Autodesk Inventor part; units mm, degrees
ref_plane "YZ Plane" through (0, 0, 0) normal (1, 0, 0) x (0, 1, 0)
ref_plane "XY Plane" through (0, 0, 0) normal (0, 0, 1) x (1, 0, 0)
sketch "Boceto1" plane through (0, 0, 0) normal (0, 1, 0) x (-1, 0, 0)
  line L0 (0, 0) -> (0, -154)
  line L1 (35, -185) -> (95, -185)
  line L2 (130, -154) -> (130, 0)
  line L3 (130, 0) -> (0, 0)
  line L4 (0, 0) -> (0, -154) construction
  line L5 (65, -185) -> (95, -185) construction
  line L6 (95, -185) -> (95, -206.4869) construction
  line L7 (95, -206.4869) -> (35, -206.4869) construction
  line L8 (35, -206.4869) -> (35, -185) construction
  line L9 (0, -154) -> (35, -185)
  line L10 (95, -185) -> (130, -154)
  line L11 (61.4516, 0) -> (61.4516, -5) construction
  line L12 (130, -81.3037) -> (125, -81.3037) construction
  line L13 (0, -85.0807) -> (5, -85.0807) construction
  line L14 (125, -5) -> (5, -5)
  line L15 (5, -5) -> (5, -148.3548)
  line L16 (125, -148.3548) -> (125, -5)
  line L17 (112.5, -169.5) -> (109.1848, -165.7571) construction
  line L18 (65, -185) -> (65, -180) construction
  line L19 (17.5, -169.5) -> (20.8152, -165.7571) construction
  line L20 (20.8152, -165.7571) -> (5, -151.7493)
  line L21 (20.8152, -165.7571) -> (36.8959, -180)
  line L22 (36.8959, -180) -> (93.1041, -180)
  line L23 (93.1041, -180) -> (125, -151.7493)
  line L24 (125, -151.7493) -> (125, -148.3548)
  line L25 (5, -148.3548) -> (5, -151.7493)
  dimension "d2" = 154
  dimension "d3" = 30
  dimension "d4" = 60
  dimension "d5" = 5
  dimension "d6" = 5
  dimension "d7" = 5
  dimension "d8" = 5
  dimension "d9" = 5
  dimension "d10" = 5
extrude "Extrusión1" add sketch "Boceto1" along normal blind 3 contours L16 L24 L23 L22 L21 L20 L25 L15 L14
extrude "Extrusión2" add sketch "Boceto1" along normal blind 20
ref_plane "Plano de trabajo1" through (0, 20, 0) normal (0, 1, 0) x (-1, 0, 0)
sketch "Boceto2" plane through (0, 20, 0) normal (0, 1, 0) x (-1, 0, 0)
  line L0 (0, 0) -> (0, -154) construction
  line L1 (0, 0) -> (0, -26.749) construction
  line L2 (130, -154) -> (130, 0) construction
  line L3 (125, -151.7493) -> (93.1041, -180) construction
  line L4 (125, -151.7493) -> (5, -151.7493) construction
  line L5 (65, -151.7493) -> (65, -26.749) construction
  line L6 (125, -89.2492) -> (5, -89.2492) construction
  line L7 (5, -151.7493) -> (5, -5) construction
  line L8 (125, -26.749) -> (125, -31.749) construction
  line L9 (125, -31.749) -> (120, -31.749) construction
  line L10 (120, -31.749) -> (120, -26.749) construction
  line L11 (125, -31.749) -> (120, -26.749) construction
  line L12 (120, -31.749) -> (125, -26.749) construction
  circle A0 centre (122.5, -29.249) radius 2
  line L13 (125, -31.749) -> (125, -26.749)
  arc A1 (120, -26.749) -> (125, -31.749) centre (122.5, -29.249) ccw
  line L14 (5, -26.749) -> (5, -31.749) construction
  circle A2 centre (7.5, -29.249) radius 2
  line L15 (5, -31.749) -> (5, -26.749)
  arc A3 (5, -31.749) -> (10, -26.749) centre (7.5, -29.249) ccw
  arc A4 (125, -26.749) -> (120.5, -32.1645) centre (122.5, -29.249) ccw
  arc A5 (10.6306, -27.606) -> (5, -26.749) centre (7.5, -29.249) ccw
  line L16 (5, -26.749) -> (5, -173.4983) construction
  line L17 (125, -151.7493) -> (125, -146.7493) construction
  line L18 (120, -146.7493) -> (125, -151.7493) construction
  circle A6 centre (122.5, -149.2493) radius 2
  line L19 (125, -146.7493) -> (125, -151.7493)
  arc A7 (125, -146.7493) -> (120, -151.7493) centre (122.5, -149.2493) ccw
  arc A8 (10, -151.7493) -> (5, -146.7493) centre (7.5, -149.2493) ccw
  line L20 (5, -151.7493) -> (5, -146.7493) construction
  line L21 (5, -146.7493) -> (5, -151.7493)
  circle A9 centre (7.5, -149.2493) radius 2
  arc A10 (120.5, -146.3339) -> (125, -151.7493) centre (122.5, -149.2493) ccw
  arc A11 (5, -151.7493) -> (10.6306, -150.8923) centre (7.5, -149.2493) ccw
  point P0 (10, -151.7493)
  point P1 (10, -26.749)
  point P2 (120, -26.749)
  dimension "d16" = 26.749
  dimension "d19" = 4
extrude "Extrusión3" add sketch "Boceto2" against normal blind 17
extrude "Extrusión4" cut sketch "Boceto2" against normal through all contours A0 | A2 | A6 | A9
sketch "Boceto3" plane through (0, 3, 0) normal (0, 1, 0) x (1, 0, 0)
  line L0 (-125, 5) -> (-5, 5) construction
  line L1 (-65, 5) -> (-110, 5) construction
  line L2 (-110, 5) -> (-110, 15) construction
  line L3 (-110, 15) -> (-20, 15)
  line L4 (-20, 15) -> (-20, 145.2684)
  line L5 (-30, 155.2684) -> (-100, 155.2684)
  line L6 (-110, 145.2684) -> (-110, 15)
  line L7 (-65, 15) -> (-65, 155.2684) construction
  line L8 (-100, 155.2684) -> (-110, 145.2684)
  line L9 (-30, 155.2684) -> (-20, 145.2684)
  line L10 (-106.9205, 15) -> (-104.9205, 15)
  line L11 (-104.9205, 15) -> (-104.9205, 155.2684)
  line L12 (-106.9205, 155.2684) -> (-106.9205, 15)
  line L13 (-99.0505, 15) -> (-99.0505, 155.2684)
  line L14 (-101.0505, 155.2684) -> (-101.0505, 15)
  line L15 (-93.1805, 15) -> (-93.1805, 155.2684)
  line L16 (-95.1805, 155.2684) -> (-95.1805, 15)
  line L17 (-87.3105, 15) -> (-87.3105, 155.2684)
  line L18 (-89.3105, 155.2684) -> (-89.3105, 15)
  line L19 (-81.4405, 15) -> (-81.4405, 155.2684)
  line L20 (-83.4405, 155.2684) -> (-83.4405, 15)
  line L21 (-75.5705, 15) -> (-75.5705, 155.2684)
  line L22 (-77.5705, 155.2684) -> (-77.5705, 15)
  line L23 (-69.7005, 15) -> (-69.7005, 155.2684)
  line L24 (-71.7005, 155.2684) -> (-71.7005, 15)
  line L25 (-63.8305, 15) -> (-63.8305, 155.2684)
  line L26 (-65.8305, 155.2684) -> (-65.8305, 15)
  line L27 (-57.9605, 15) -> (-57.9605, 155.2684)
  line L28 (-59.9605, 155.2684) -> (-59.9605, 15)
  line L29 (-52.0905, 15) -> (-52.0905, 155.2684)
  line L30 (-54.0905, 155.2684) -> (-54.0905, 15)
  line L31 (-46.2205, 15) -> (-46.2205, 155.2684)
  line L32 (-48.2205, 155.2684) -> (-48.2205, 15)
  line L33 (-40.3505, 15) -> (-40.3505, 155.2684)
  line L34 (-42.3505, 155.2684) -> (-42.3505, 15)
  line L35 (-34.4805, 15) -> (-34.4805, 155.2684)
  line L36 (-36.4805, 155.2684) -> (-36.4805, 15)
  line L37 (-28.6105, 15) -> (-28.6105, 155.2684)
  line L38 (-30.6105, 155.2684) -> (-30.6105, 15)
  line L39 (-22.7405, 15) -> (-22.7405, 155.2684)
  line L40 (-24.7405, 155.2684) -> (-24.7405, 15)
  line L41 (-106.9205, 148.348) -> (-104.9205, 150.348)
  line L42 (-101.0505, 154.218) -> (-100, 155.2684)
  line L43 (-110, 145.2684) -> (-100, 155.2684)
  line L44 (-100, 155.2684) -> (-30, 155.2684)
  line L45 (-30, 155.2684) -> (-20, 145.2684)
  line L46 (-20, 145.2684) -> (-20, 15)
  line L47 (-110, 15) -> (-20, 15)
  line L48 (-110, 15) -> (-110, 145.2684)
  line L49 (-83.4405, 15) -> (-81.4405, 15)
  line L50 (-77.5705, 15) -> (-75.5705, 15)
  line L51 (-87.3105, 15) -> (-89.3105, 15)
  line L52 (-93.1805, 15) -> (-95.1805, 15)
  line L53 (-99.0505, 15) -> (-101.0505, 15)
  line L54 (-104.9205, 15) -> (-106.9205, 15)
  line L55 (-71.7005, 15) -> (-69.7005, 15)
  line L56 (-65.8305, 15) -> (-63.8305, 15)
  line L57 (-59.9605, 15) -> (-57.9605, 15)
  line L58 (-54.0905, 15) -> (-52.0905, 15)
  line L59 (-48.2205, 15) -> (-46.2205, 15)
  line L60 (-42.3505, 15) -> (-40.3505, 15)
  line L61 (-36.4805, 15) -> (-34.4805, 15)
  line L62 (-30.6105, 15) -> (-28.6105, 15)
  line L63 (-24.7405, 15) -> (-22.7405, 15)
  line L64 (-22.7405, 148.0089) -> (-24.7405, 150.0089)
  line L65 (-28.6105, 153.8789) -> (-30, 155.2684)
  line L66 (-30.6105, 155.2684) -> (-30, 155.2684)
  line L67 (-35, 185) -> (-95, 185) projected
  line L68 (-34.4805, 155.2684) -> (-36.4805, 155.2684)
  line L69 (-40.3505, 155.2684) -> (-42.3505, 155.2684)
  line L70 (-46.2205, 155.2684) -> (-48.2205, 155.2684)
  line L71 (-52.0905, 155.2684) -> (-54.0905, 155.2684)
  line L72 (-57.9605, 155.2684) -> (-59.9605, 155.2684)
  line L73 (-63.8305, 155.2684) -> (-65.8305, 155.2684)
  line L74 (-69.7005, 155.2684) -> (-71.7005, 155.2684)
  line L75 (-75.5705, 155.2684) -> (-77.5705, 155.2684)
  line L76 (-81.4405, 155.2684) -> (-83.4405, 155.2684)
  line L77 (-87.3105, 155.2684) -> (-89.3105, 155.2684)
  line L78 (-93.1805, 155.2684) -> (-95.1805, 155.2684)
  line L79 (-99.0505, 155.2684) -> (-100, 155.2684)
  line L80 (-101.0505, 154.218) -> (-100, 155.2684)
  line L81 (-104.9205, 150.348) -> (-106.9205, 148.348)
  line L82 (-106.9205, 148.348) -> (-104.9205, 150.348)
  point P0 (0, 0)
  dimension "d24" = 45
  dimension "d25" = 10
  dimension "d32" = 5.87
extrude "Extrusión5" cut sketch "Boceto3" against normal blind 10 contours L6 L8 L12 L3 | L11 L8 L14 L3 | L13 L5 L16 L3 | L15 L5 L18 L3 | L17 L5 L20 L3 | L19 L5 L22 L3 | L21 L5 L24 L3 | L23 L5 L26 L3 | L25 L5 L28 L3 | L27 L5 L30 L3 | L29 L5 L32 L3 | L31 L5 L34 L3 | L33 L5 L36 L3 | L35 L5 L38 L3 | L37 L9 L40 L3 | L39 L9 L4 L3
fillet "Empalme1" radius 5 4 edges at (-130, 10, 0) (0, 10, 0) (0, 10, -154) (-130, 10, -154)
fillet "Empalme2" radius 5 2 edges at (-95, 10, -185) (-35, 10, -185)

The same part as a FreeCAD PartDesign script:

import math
import FreeCAD as App
import Part
import Sketcher
from FreeCAD import Vector


def edges_at(feature, points):
    """Names of the edges that pass closest to the given points."""
    edges = feature.Shape.Edges
    near = lambda p: min(range(len(edges)), key=lambda i: edges[i].distToShape(Part.Vertex(*p))[0])
    return sorted({f"Edge{near(p) + 1}" for p in points})

doc = App.newDocument("Part")
params = doc.addObject("Spreadsheet::Sheet", "Params")
for row, (alias, value) in enumerate([
    ("sketch1_width", "120 mm"),
    ("pad1_length", "3 mm"),
    ("sketch2_width", "60 mm"),
    ("sketch2_height", "154 mm"),
    ("pad2_length", "20 mm"),
    ("sketch3_diameter", "4 mm"),
    ("sketch3_height", "5 mm"),
    ("pad3_length", "17 mm"),
    ("sketch4_diameter", "4 mm"),
    ("sketch5_width", "3.87 mm"),
    ("pocket2_length", "10 mm"),
    ("fillet_radius", "5 mm"),
    ("fillet2_radius", "5 mm"),
], start=1):
    params.set(f"A{row}", alias)
    params.set(f"B{row}", "=" + value)
    params.setAlias(f"B{row}", alias)

body = doc.addObject("PartDesign::Body", "Body")

sketch1 = doc.addObject("Sketcher::SketchObject", "Sketch")
body.addObject(sketch1)
sketch1.AttachmentSupport = (doc.XZ_Plane, [""])
sketch1.MapMode = "FlatFace"
sketch1.addGeometry([
    Part.LineSegment(Vector(-125, -151.7493, 0), Vector(-125, -5, 0)),
    Part.LineSegment(Vector(-125, -5, 0), Vector(-5, -5, 0)),
    Part.LineSegment(Vector(-5, -5, 0), Vector(-5, -151.7493, 0)),
    Part.LineSegment(Vector(-5, -151.7493, 0), Vector(-20.8152, -165.7571, 0)),
    Part.LineSegment(Vector(-20.8152, -165.7571, 0), Vector(-36.8959, -180, 0)),
    Part.LineSegment(Vector(-36.8959, -180, 0), Vector(-93.1041, -180, 0)),
    Part.LineSegment(Vector(-93.1041, -180, 0), Vector(-125, -151.7493, 0)),
], False)
sketch1.addConstraint([
    Sketcher.Constraint("Coincident", 0, 2, 1, 1),
    Sketcher.Constraint("Coincident", 1, 2, 2, 1),
    Sketcher.Constraint("Coincident", 2, 2, 3, 1),
    Sketcher.Constraint("Coincident", 3, 2, 4, 1),
    Sketcher.Constraint("Coincident", 4, 2, 5, 1),
    Sketcher.Constraint("Coincident", 5, 2, 6, 1),
    Sketcher.Constraint("Coincident", 6, 2, 0, 1),
    Sketcher.Constraint("Vertical", 0),
    Sketcher.Constraint("Horizontal", 1),
    Sketcher.Constraint("Vertical", 2),
    Sketcher.Constraint("Horizontal", 5),
    Sketcher.Constraint("Parallel", 3, 4),
    Sketcher.Constraint("Horizontal", 2, 2, 6, 2),
    Sketcher.Constraint("DistanceY", 0, 2, -1, 1, 5.0),
    Sketcher.Constraint("DistanceX", 1, 2, -1, 1, 5.0),
    Sketcher.Constraint("DistanceX", 1, 1, 1, 2, 120.0),
    Sketcher.Constraint("DistanceY", 4, 2, -1, 1, 180.0),
    Sketcher.Constraint("Distance", 6, 42.608),
    Sketcher.Constraint("DistanceX", 5, 2, 5, 1, 56.2082),
    Sketcher.Constraint("DistanceY", 0, 1, 0, 2, 146.7493),
    Sketcher.Constraint("DistanceY", 3, 2, -1, 1, 165.757),
])
sketch1.setExpression("Constraints[15]", "Params.sketch1_width")
pad1 = doc.addObject("PartDesign::Pad", "Pad")
body.addObject(pad1)
pad1.Profile = sketch1
pad1.setExpression("Length", "Params.pad1_length")
pad1.Reversed = True

sketch2 = doc.addObject("Sketcher::SketchObject", "Sketch001")
body.addObject(sketch2)
sketch2.AttachmentSupport = (doc.XZ_Plane, [""])
sketch2.MapMode = "FlatFace"
sketch2.addGeometry([
    Part.LineSegment(Vector(-130, 0, 0), Vector(0, 0, 0)),
    Part.LineSegment(Vector(0, 0, 0), Vector(0, -154, 0)),
    Part.LineSegment(Vector(0, -154, 0), Vector(-35, -185, 0)),
    Part.LineSegment(Vector(-35, -185, 0), Vector(-95, -185, 0)),
    Part.LineSegment(Vector(-95, -185, 0), Vector(-130, -154, 0)),
    Part.LineSegment(Vector(-130, -154, 0), Vector(-130, 0, 0)),
    Part.LineSegment(Vector(-5, -5, 0), Vector(-125, -5, 0)),
    Part.LineSegment(Vector(-125, -5, 0), Vector(-125, -151.7493, 0)),
    Part.LineSegment(Vector(-125, -151.7493, 0), Vector(-93.1041, -180, 0)),
    Part.LineSegment(Vector(-93.1041, -180, 0), Vector(-36.8959, -180, 0)),
    Part.LineSegment(Vector(-36.8959, -180, 0), Vector(-20.8152, -165.7571, 0)),
    Part.LineSegment(Vector(-20.8152, -165.7571, 0), Vector(-5, -151.7493, 0)),
    Part.LineSegment(Vector(-5, -151.7493, 0), Vector(-5, -5, 0)),
], False)
sketch2.addConstraint([
    Sketcher.Constraint("Coincident", 0, 2, 1, 1),
    Sketcher.Constraint("Coincident", 1, 2, 2, 1),
    Sketcher.Constraint("Coincident", 2, 2, 3, 1),
    Sketcher.Constraint("Coincident", 3, 2, 4, 1),
    Sketcher.Constraint("Coincident", 4, 2, 5, 1),
    Sketcher.Constraint("Coincident", 5, 2, 0, 1),
    Sketcher.Constraint("Coincident", 6, 2, 7, 1),
    Sketcher.Constraint("Coincident", 7, 2, 8, 1),
    Sketcher.Constraint("Coincident", 8, 2, 9, 1),
    Sketcher.Constraint("Coincident", 9, 2, 10, 1),
    Sketcher.Constraint("Coincident", 10, 2, 11, 1),
    Sketcher.Constraint("Coincident", 11, 2, 12, 1),
    Sketcher.Constraint("Coincident", 12, 2, 6, 1),
    Sketcher.Constraint("Horizontal", 0),
    Sketcher.Constraint("Vertical", 1),
    Sketcher.Constraint("Horizontal", 3),
    Sketcher.Constraint("Vertical", 5),
    Sketcher.Constraint("Horizontal", 6),
    Sketcher.Constraint("Vertical", 7),
    Sketcher.Constraint("Horizontal", 9),
    Sketcher.Constraint("Vertical", 12),
    Sketcher.Constraint("Coincident", 0, 2, -1, 1),
    Sketcher.Constraint("Parallel", 4, 8),
    Sketcher.Constraint("Parallel", 2, 10),
    Sketcher.Constraint("Parallel", 10, 11),
    Sketcher.Constraint("Horizontal", 1, 2, 4, 2),
    Sketcher.Constraint("Horizontal", 7, 2, 11, 2),
    Sketcher.Constraint("Equal", 2, 4),
    Sketcher.Constraint("DistanceX", 3, 2, 3, 1, 60.0),
    Sketcher.Constraint("DistanceY", 1, 2, 1, 1, 154.0),
    Sketcher.Constraint("DistanceY", 6, 2, -1, 1, 5.0),
    Sketcher.Constraint("DistanceX", 11, 2, -1, 1, 5.0),
    Sketcher.Constraint("DistanceX", 5, 2, 6, 2, 5.0),
    Sketcher.Constraint("DistanceX", 6, 2, 3, 2, 30.0),
    Sketcher.Constraint("DistanceY", 3, 2, 8, 2, 5.0),
    Sketcher.Constraint("DistanceY", 2, 2, -1, 1, 185.0),
    Sketcher.Constraint("Distance", 8, 42.608),
    Sketcher.Constraint("DistanceY", 10, 2, -1, 1, 165.757),
])
sketch2.setExpression("Constraints[28]", "Params.sketch2_width")
sketch2.setExpression("Constraints[29]", "Params.sketch2_height")
pad2 = doc.addObject("PartDesign::Pad", "Pad001")
body.addObject(pad2)
pad2.Profile = sketch2
pad2.setExpression("Length", "Params.pad2_length")
pad2.Reversed = True

sketch3 = doc.addObject("Sketcher::SketchObject", "Sketch002")
body.addObject(sketch3)
sketch3.AttachmentSupport = (doc.XZ_Plane, [""])
sketch3.MapMode = "FlatFace"
sketch3.AttachmentOffset = App.Placement(Vector(0, 0, -20), App.Rotation())
sketch3.addGeometry([
    Part.ArcOfCircle(Part.Circle(Vector(-122.5, -29.249, 0), Vector(0, 0, 1), 3.535534), math.radians(-135), math.radians(45)),
    Part.LineSegment(Vector(-125, -31.749, 0), Vector(-125, -26.749, 0)),
    Part.ArcOfCircle(Part.Circle(Vector(-122.5, -29.249, 0), Vector(0, 0, 1), 3.535534), math.radians(45), math.radians(135)),
    Part.Circle(Vector(-122.5, -29.249, 0), Vector(0, 0, 1), 2),
    Part.LineSegment(Vector(-5, -26.749, 0), Vector(-5, -31.749, 0)),
    Part.ArcOfCircle(Part.Circle(Vector(-7.5, -29.249, 0), Vector(0, 0, 1), 3.535534), math.radians(135), math.radians(315)),
    Part.ArcOfCircle(Part.Circle(Vector(-7.5, -29.249, 0), Vector(0, 0, 1), 3.535534), math.radians(45), math.radians(135)),
    Part.Circle(Vector(-7.5, -29.249, 0), Vector(0, 0, 1), 2),
    Part.LineSegment(Vector(-125, -151.7493, 0), Vector(-125, -146.7493, 0)),
    Part.ArcOfCircle(Part.Circle(Vector(-122.5, -149.2493, 0), Vector(0, 0, 1), 3.535534), math.radians(-45), math.radians(135)),
    Part.ArcOfCircle(Part.Circle(Vector(-122.5, -149.2493, 0), Vector(0, 0, 1), 3.535471), math.radians(-135), math.radians(-45)),
    Part.Circle(Vector(-122.5, -149.2493, 0), Vector(0, 0, 1), 2),
    Part.ArcOfCircle(Part.Circle(Vector(-7.5, -149.2493, 0), Vector(0, 0, 1), 3.535534), math.radians(-135), math.radians(-45)),
    Part.ArcOfCircle(Part.Circle(Vector(-7.5, -149.2493, 0), Vector(0, 0, 1), 3.535534), math.radians(45), math.radians(225)),
    Part.LineSegment(Vector(-5, -146.7493, 0), Vector(-5, -151.7493, 0)),
    Part.Circle(Vector(-7.5, -149.2493, 0), Vector(0, 0, 1), 2),
], False)
sketch3.addConstraint([
    Sketcher.Constraint("Coincident", 0, 1, 1, 1),
    Sketcher.Constraint("Coincident", 1, 2, 2, 2),
    Sketcher.Constraint("Tangent", 2, 1, 0, 2),
    Sketcher.Constraint("Coincident", 4, 2, 5, 2),
    Sketcher.Constraint("Tangent", 5, 1, 6, 2),
    Sketcher.Constraint("Coincident", 6, 1, 4, 1),
    Sketcher.Constraint("Coincident", 8, 2, 9, 2),
    Sketcher.Constraint("Tangent", 9, 1, 10, 2),
    Sketcher.Constraint("Coincident", 10, 1, 8, 1),
    Sketcher.Constraint("Tangent", 12, 1, 13, 2),
    Sketcher.Constraint("Coincident", 13, 1, 14, 1),
    Sketcher.Constraint("Coincident", 14, 2, 12, 2),
    Sketcher.Constraint("Vertical", 1),
    Sketcher.Constraint("Vertical", 4),
    Sketcher.Constraint("Vertical", 8),
    Sketcher.Constraint("Vertical", 14),
    Sketcher.Constraint("Coincident", 3, 3, 0, 3),
    Sketcher.Constraint("Coincident", 7, 3, 5, 3),
    Sketcher.Constraint("Coincident", 11, 3, 9, 3),
    Sketcher.Constraint("Coincident", 15, 3, 12, 3),
    Sketcher.Constraint("Equal", 0, 2),
    Sketcher.Constraint("Equal", 2, 5),
    Sketcher.Constraint("Equal", 5, 6),
    Sketcher.Constraint("Equal", 3, 7),
    Sketcher.Constraint("Equal", 6, 9),
    Sketcher.Constraint("Equal", 9, 10),
    Sketcher.Constraint("Equal", 7, 11),
    Sketcher.Constraint("Equal", 10, 12),
    Sketcher.Constraint("Equal", 12, 13),
    Sketcher.Constraint("Equal", 11, 15),
    Sketcher.Constraint("Horizontal", 3, 3, 5, 3),
    Sketcher.Constraint("Horizontal", 11, 3, 12, 3),
    Sketcher.Constraint("Horizontal", 1, 2, 2, 1),
    Sketcher.Constraint("Horizontal", 0, 1, 4, 2),
    Sketcher.Constraint("Horizontal", 2, 1, 5, 1),
    Sketcher.Constraint("Horizontal", 9, 1, 10, 1),
    Sketcher.Constraint("Horizontal", 10, 1, 12, 1),
    Sketcher.Constraint("Horizontal", 8, 2, 13, 1),
    Sketcher.Constraint("Vertical", 3, 3, 9, 3),
    Sketcher.Constraint("Vertical", 7, 3, 12, 3),
    Sketcher.Constraint("Vertical", 1, 2, 8, 2),
    Sketcher.Constraint("Diameter", 3, 4.0),
    Sketcher.Constraint("DistanceY", 1, 1, 1, 2, 5.0),
    Sketcher.Constraint("DistanceY", 1, 2, -1, 1, 26.749),
    Sketcher.Constraint("DistanceX", 0, 1, -1, 1, 125.0),
    Sketcher.Constraint("DistanceX", 2, 1, -1, 1, 120.0),
    Sketcher.Constraint("DistanceX", 4, 2, -1, 1, 5.0),
    Sketcher.Constraint("DistanceY", 9, 3, -1, 1, 149.2493),
])
sketch3.setExpression("Constraints[41]", "Params.sketch3_diameter")
sketch3.setExpression("Constraints[42]", "Params.sketch3_height")
pad3 = doc.addObject("PartDesign::Pad", "Pad002")
body.addObject(pad3)
pad3.Profile = sketch3
pad3.setExpression("Length", "Params.pad3_length")

sketch4 = doc.addObject("Sketcher::SketchObject", "Sketch003")
body.addObject(sketch4)
sketch4.AttachmentSupport = (doc.XZ_Plane, [""])
sketch4.MapMode = "FlatFace"
sketch4.AttachmentOffset = App.Placement(Vector(0, 0, -20), App.Rotation())
sketch4.addGeometry([
    Part.Circle(Vector(-122.5, -29.249, 0), Vector(0, 0, 1), 2),
    Part.Circle(Vector(-7.5, -29.249, 0), Vector(0, 0, 1), 2),
    Part.Circle(Vector(-122.5, -149.2493, 0), Vector(0, 0, 1), 2),
    Part.Circle(Vector(-7.5, -149.2493, 0), Vector(0, 0, 1), 2),
], False)
sketch4.addConstraint([
    Sketcher.Constraint("Equal", 0, 1),
    Sketcher.Constraint("Equal", 1, 2),
    Sketcher.Constraint("Equal", 2, 3),
    Sketcher.Constraint("Horizontal", 0, 3, 1, 3),
    Sketcher.Constraint("Horizontal", 2, 3, 3, 3),
    Sketcher.Constraint("Vertical", 0, 3, 2, 3),
    Sketcher.Constraint("Vertical", 1, 3, 3, 3),
    Sketcher.Constraint("Diameter", 0, 4.0),
    Sketcher.Constraint("DistanceX", 0, 3, 1, 3, 115.0),
    Sketcher.Constraint("DistanceX", 0, 3, -1, 1, 122.5),
    Sketcher.Constraint("DistanceY", 0, 3, -1, 1, 29.249),
    Sketcher.Constraint("DistanceY", 2, 3, -1, 1, 149.2493),
])
sketch4.setExpression("Constraints[7]", "Params.sketch4_diameter")
pocket1 = doc.addObject("PartDesign::Pocket", "Pocket")
body.addObject(pocket1)
pocket1.Profile = sketch4
pocket1.Type = "ThroughAll"
pocket1.Reversed = True

sketch5 = doc.addObject("Sketcher::SketchObject", "Sketch004")
body.addObject(sketch5)
sketch5.AttachmentSupport = (doc.XZ_Plane, [""])
sketch5.MapMode = "FlatFace"
sketch5.AttachmentOffset = App.Placement(Vector(0, 0, -3), App.Rotation())
sketch5.addGeometry([
    Part.LineSegment(Vector(-110, -145.2684, 0), Vector(-110, -15, 0)),
    Part.LineSegment(Vector(-110, -15, 0), Vector(-106.9205, -15, 0)),
    Part.LineSegment(Vector(-106.9205, -15, 0), Vector(-106.9205, -148.348, 0)),
    Part.LineSegment(Vector(-106.92045, -148.34795, 0), Vector(-110, -145.2684, 0)),
    Part.LineSegment(Vector(-104.9205, -150.348, 0), Vector(-104.9205, -15, 0)),
    Part.LineSegment(Vector(-104.9205, -15, 0), Vector(-101.0505, -15, 0)),
    Part.LineSegment(Vector(-101.0505, -15, 0), Vector(-101.0505, -154.218, 0)),
    Part.LineSegment(Vector(-101.05045, -154.21795, 0), Vector(-104.92045, -150.34795, 0)),
    Part.LineSegment(Vector(-99.0505, -155.2684, 0), Vector(-99.0505, -15, 0)),
    Part.LineSegment(Vector(-99.0505, -15, 0), Vector(-95.1805, -15, 0)),
    Part.LineSegment(Vector(-95.1805, -15, 0), Vector(-95.1805, -155.2684, 0)),
    Part.LineSegment(Vector(-95.1805, -155.2684, 0), Vector(-99.0505, -155.2684, 0)),
    Part.LineSegment(Vector(-93.1805, -155.2684, 0), Vector(-93.1805, -15, 0)),
    Part.LineSegment(Vector(-93.1805, -15, 0), Vector(-89.3105, -15, 0)),
    Part.LineSegment(Vector(-89.3105, -15, 0), Vector(-89.3105, -155.2684, 0)),
    Part.LineSegment(Vector(-89.3105, -155.2684, 0), Vector(-93.1805, -155.2684, 0)),
    Part.LineSegment(Vector(-87.3105, -155.2684, 0), Vector(-87.3105, -15, 0)),
    Part.LineSegment(Vector(-87.3105, -15, 0), Vector(-83.4405, -15, 0)),
    Part.LineSegment(Vector(-83.4405, -15, 0), Vector(-83.4405, -155.2684, 0)),
    Part.LineSegment(Vector(-83.4405, -155.2684, 0), Vector(-87.3105, -155.2684, 0)),
    Part.LineSegment(Vector(-81.4405, -155.2684, 0), Vector(-81.4405, -15, 0)),
    Part.LineSegment(Vector(-81.4405, -15, 0), Vector(-77.5705, -15, 0)),
    Part.LineSegment(Vector(-77.5705, -15, 0), Vector(-77.5705, -155.2684, 0)),
    Part.LineSegment(Vector(-77.5705, -155.2684, 0), Vector(-81.4405, -155.2684, 0)),
    Part.LineSegment(Vector(-75.5705, -155.2684, 0), Vector(-75.5705, -15, 0)),
    Part.LineSegment(Vector(-75.5705, -15, 0), Vector(-71.7005, -15, 0)),
    Part.LineSegment(Vector(-71.7005, -15, 0), Vector(-71.7005, -155.2684, 0)),
    Part.LineSegment(Vector(-71.7005, -155.2684, 0), Vector(-75.5705, -155.2684, 0)),
    Part.LineSegment(Vector(-69.7005, -155.2684, 0), Vector(-69.7005, -15, 0)),
    Part.LineSegment(Vector(-69.7005, -15, 0), Vector(-65.8305, -15, 0)),
    Part.LineSegment(Vector(-65.8305, -15, 0), Vector(-65.8305, -155.2684, 0)),
    Part.LineSegment(Vector(-65.8305, -155.2684, 0), Vector(-69.7005, -155.2684, 0)),
    Part.LineSegment(Vector(-63.8305, -155.2684, 0), Vector(-63.8305, -15, 0)),
    Part.LineSegment(Vector(-63.8305, -15, 0), Vector(-59.9605, -15, 0)),
    Part.LineSegment(Vector(-59.9605, -15, 0), Vector(-59.9605, -155.2684, 0)),
    Part.LineSegment(Vector(-59.9605, -155.2684, 0), Vector(-63.8305, -155.2684, 0)),
    Part.LineSegment(Vector(-57.9605, -155.2684, 0), Vector(-57.9605, -15, 0)),
    Part.LineSegment(Vector(-57.9605, -15, 0), Vector(-54.0905, -15, 0)),
    Part.LineSegment(Vector(-54.0905, -15, 0), Vector(-54.0905, -155.2684, 0)),
    Part.LineSegment(Vector(-54.0905, -155.2684, 0), Vector(-57.9605, -155.2684, 0)),
    Part.LineSegment(Vector(-52.0905, -155.2684, 0), Vector(-52.0905, -15, 0)),
    Part.LineSegment(Vector(-52.0905, -15, 0), Vector(-48.2205, -15, 0)),
    Part.LineSegment(Vector(-48.2205, -15, 0), Vector(-48.2205, -155.2684, 0)),
    Part.LineSegment(Vector(-48.2205, -155.2684, 0), Vector(-52.0905, -155.2684, 0)),
    Part.LineSegment(Vector(-46.2205, -155.2684, 0), Vector(-46.2205, -15, 0)),
    Part.LineSegment(Vector(-46.2205, -15, 0), Vector(-42.3505, -15, 0)),
    Part.LineSegment(Vector(-42.3505, -15, 0), Vector(-42.3505, -155.2684, 0)),
    Part.LineSegment(Vector(-42.3505, -155.2684, 0), Vector(-46.2205, -155.2684, 0)),
    Part.LineSegment(Vector(-40.3505, -155.2684, 0), Vector(-40.3505, -15, 0)),
    Part.LineSegment(Vector(-40.3505, -15, 0), Vector(-36.4805, -15, 0)),
    Part.LineSegment(Vector(-36.4805, -15, 0), Vector(-36.4805, -155.2684, 0)),
    Part.LineSegment(Vector(-36.4805, -155.2684, 0), Vector(-40.3505, -155.2684, 0)),
    Part.LineSegment(Vector(-34.4805, -155.2684, 0), Vector(-34.4805, -15, 0)),
    Part.LineSegment(Vector(-34.4805, -15, 0), Vector(-30.6105, -15, 0)),
    Part.LineSegment(Vector(-30.6105, -15, 0), Vector(-30.6105, -155.2684, 0)),
    Part.LineSegment(Vector(-30.6105, -155.2684, 0), Vector(-34.4805, -155.2684, 0)),
    Part.LineSegment(Vector(-28.6105, -153.8789, 0), Vector(-28.6105, -15, 0)),
    Part.LineSegment(Vector(-28.6105, -15, 0), Vector(-24.7405, -15, 0)),
    Part.LineSegment(Vector(-24.7405, -15, 0), Vector(-24.7405, -150.0089, 0)),
    Part.LineSegment(Vector(-24.7405, -150.0089, 0), Vector(-28.6105, -153.8789, 0)),
    Part.LineSegment(Vector(-22.7405, -148.0089, 0), Vector(-22.7405, -15, 0)),
    Part.LineSegment(Vector(-22.7405, -15, 0), Vector(-20, -15, 0)),
    Part.LineSegment(Vector(-20, -15, 0), Vector(-20, -145.2684, 0)),
    Part.LineSegment(Vector(-20, -145.2684, 0), Vector(-22.7405, -148.0089, 0)),
], False)
sketch5.addConstraint([
    Sketcher.Constraint("Coincident", 0, 2, 1, 1),
    Sketcher.Constraint("Coincident", 1, 2, 2, 1),
    Sketcher.Constraint("Coincident", 2, 2, 3, 1),
    Sketcher.Constraint("Coincident", 3, 2, 0, 1),
    Sketcher.Constraint("Coincident", 4, 2, 5, 1),
    Sketcher.Constraint("Coincident", 5, 2, 6, 1),
    Sketcher.Constraint("Coincident", 6, 2, 7, 1),
    Sketcher.Constraint("Coincident", 7, 2, 4, 1),
    Sketcher.Constraint("Coincident", 8, 2, 9, 1),
    Sketcher.Constraint("Coincident", 9, 2, 10, 1),
    Sketcher.Constraint("Coincident", 10, 2, 11, 1),
    Sketcher.Constraint("Coincident", 11, 2, 8, 1),
    Sketcher.Constraint("Coincident", 12, 2, 13, 1),
    Sketcher.Constraint("Coincident", 13, 2, 14, 1),
    Sketcher.Constraint("Coincident", 14, 2, 15, 1),
    Sketcher.Constraint("Coincident", 15, 2, 12, 1),
    Sketcher.Constraint("Coincident", 16, 2, 17, 1),
    Sketcher.Constraint("Coincident", 17, 2, 18, 1),
    Sketcher.Constraint("Coincident", 18, 2, 19, 1),
    Sketcher.Constraint("Coincident", 19, 2, 16, 1),
    Sketcher.Constraint("Coincident", 20, 2, 21, 1),
    Sketcher.Constraint("Coincident", 21, 2, 22, 1),
    Sketcher.Constraint("Coincident", 22, 2, 23, 1),
    Sketcher.Constraint("Coincident", 23, 2, 20, 1),
    Sketcher.Constraint("Coincident", 24, 2, 25, 1),
    Sketcher.Constraint("Coincident", 25, 2, 26, 1),
    Sketcher.Constraint("Coincident", 26, 2, 27, 1),
    Sketcher.Constraint("Coincident", 27, 2, 24, 1),
    Sketcher.Constraint("Coincident", 28, 2, 29, 1),
    Sketcher.Constraint("Coincident", 29, 2, 30, 1),
    Sketcher.Constraint("Coincident", 30, 2, 31, 1),
    Sketcher.Constraint("Coincident", 31, 2, 28, 1),
    Sketcher.Constraint("Coincident", 32, 2, 33, 1),
    Sketcher.Constraint("Coincident", 33, 2, 34, 1),
    Sketcher.Constraint("Coincident", 34, 2, 35, 1),
    Sketcher.Constraint("Coincident", 35, 2, 32, 1),
    Sketcher.Constraint("Coincident", 36, 2, 37, 1),
    Sketcher.Constraint("Coincident", 37, 2, 38, 1),
    Sketcher.Constraint("Coincident", 38, 2, 39, 1),
    Sketcher.Constraint("Coincident", 39, 2, 36, 1),
    Sketcher.Constraint("Coincident", 40, 2, 41, 1),
    Sketcher.Constraint("Coincident", 41, 2, 42, 1),
    Sketcher.Constraint("Coincident", 42, 2, 43, 1),
    Sketcher.Constraint("Coincident", 43, 2, 40, 1),
    Sketcher.Constraint("Coincident", 44, 2, 45, 1),
    Sketcher.Constraint("Coincident", 45, 2, 46, 1),
    Sketcher.Constraint("Coincident", 46, 2, 47, 1),
    Sketcher.Constraint("Coincident", 47, 2, 44, 1),
    Sketcher.Constraint("Coincident", 48, 2, 49, 1),
    Sketcher.Constraint("Coincident", 49, 2, 50, 1),
    Sketcher.Constraint("Coincident", 50, 2, 51, 1),
    Sketcher.Constraint("Coincident", 51, 2, 48, 1),
    Sketcher.Constraint("Coincident", 52, 2, 53, 1),
    Sketcher.Constraint("Coincident", 53, 2, 54, 1),
    Sketcher.Constraint("Coincident", 54, 2, 55, 1),
    Sketcher.Constraint("Coincident", 55, 2, 52, 1),
    Sketcher.Constraint("Coincident", 56, 2, 57, 1),
    Sketcher.Constraint("Coincident", 57, 2, 58, 1),
    Sketcher.Constraint("Coincident", 58, 2, 59, 1),
    Sketcher.Constraint("Coincident", 59, 2, 56, 1),
    Sketcher.Constraint("Coincident", 60, 2, 61, 1),
    Sketcher.Constraint("Coincident", 61, 2, 62, 1),
    Sketcher.Constraint("Coincident", 62, 2, 63, 1),
    Sketcher.Constraint("Coincident", 63, 2, 60, 1),
    Sketcher.Constraint("Vertical", 0),
    Sketcher.Constraint("Horizontal", 1),
    Sketcher.Constraint("Vertical", 2),
    Sketcher.Constraint("Vertical", 4),
    Sketcher.Constraint("Horizontal", 5),
    Sketcher.Constraint("Vertical", 6),
    Sketcher.Constraint("Vertical", 8),
    Sketcher.Constraint("Horizontal", 9),
    Sketcher.Constraint("Vertical", 10),
    Sketcher.Constraint("Horizontal", 11),
    Sketcher.Constraint("Vertical", 12),
    Sketcher.Constraint("Horizontal", 13),
    Sketcher.Constraint("Vertical", 14),
    Sketcher.Constraint("Horizontal", 15),
    Sketcher.Constraint("Vertical", 16),
    Sketcher.Constraint("Horizontal", 17),
    Sketcher.Constraint("Vertical", 18),
    Sketcher.Constraint("Horizontal", 19),
    Sketcher.Constraint("Vertical", 20),
    Sketcher.Constraint("Horizontal", 21),
    Sketcher.Constraint("Vertical", 22),
    Sketcher.Constraint("Horizontal", 23),
    Sketcher.Constraint("Vertical", 24),
    Sketcher.Constraint("Horizontal", 25),
    Sketcher.Constraint("Vertical", 26),
    Sketcher.Constraint("Horizontal", 27),
    Sketcher.Constraint("Vertical", 28),
    Sketcher.Constraint("Horizontal", 29),
    Sketcher.Constraint("Vertical", 30),
    Sketcher.Constraint("Horizontal", 31),
    Sketcher.Constraint("Vertical", 32),
    Sketcher.Constraint("Horizontal", 33),
    Sketcher.Constraint("Vertical", 34),
    Sketcher.Constraint("Horizontal", 35),
    Sketcher.Constraint("Vertical", 36),
    Sketcher.Constraint("Horizontal", 37),
    Sketcher.Constraint("Vertical", 38),
    Sketcher.Constraint("Horizontal", 39),
    Sketcher.Constraint("Vertical", 40),
    Sketcher.Constraint("Horizontal", 41),
    Sketcher.Constraint("Vertical", 42),
    Sketcher.Constraint("Horizontal", 43),
    Sketcher.Constraint("Vertical", 44),
    Sketcher.Constraint("Horizontal", 45),
    Sketcher.Constraint("Vertical", 46),
    Sketcher.Constraint("Horizontal", 47),
    Sketcher.Constraint("Vertical", 48),
    Sketcher.Constraint("Horizontal", 49),
    Sketcher.Constraint("Vertical", 50),
    Sketcher.Constraint("Horizontal", 51),
    Sketcher.Constraint("Vertical", 52),
    Sketcher.Constraint("Horizontal", 53),
    Sketcher.Constraint("Vertical", 54),
    Sketcher.Constraint("Horizontal", 55),
    Sketcher.Constraint("Vertical", 56),
    Sketcher.Constraint("Horizontal", 57),
    Sketcher.Constraint("Vertical", 58),
    Sketcher.Constraint("Vertical", 60),
    Sketcher.Constraint("Horizontal", 61),
    Sketcher.Constraint("Vertical", 62),
    Sketcher.Constraint("Parallel", 3, 7),
    Sketcher.Constraint("Perpendicular", 7, 59),
    Sketcher.Constraint("Parallel", 59, 63),
    Sketcher.Constraint("Horizontal", 1, 2, 4, 2),
    Sketcher.Constraint("Horizontal", 5, 2, 8, 2),
    Sketcher.Constraint("Horizontal", 9, 2, 12, 2),
    Sketcher.Constraint("Horizontal", 11, 2, 14, 2),
    Sketcher.Constraint("Horizontal", 13, 2, 16, 2),
    Sketcher.Constraint("Horizontal", 15, 2, 18, 2),
    Sketcher.Constraint("Horizontal", 17, 2, 20, 2),
    Sketcher.Constraint("Horizontal", 19, 2, 22, 2),
    Sketcher.Constraint("Horizontal", 21, 2, 24, 2),
    Sketcher.Constraint("Horizontal", 23, 2, 26, 2),
    Sketcher.Constraint("Horizontal", 25, 2, 28, 2),
    Sketcher.Constraint("Horizontal", 27, 2, 30, 2),
    Sketcher.Constraint("Horizontal", 29, 2, 32, 2),
    Sketcher.Constraint("Horizontal", 31, 2, 34, 2),
    Sketcher.Constraint("Horizontal", 33, 2, 36, 2),
    Sketcher.Constraint("Horizontal", 35, 2, 38, 2),
    Sketcher.Constraint("Horizontal", 37, 2, 40, 2),
    Sketcher.Constraint("Horizontal", 39, 2, 42, 2),
    Sketcher.Constraint("Horizontal", 41, 2, 44, 2),
    Sketcher.Constraint("Horizontal", 43, 2, 46, 2),
    Sketcher.Constraint("Horizontal", 45, 2, 48, 2),
    Sketcher.Constraint("Horizontal", 47, 2, 50, 2),
    Sketcher.Constraint("Horizontal", 49, 2, 52, 2),
    Sketcher.Constraint("Horizontal", 51, 2, 54, 2),
    Sketcher.Constraint("Horizontal", 53, 2, 56, 2),
    Sketcher.Constraint("Horizontal", 57, 2, 60, 2),
    Sketcher.Constraint("Horizontal", 3, 2, 62, 2),
    Sketcher.Constraint("Equal", 5, 9),
    Sketcher.Constraint("Equal", 11, 13),
    Sketcher.Constraint("Equal", 15, 17),
    Sketcher.Constraint("Equal", 19, 21),
    Sketcher.Constraint("Equal", 23, 25),
    Sketcher.Constraint("Equal", 27, 29),
    Sketcher.Constraint("Equal", 31, 33),
    Sketcher.Constraint("Equal", 35, 37),
    Sketcher.Constraint("Equal", 39, 41),
    Sketcher.Constraint("Equal", 43, 45),
    Sketcher.Constraint("Equal", 47, 49),
    Sketcher.Constraint("Equal", 51, 53),
    Sketcher.Constraint("Equal", 55, 57),
    Sketcher.Constraint("Equal", 7, 59),
    Sketcher.Constraint("DistanceX", 0, 2, -1, 1, 110.0),
    Sketcher.Constraint("DistanceY", 0, 2, -1, 1, 15.0),
    Sketcher.Constraint("DistanceX", 61, 2, -1, 1, 20.0),
    Sketcher.Constraint("DistanceX", 5, 1, 5, 2, 3.87),
    Sketcher.Constraint("DistanceY", 2, 2, 2, 1, 133.348),
    Sketcher.Constraint("DistanceY", 4, 1, 4, 2, 135.348),
    Sketcher.Constraint("DistanceY", 56, 1, 56, 2, 138.879),
    Sketcher.Constraint("DistanceY", 60, 1, 60, 2, 133.009),
    Sketcher.Constraint("DistanceX", 1, 1, 1, 2, 3.0795),
    Sketcher.Constraint("DistanceY", 8, 1, 8, 2, 140.2684),
    Sketcher.Constraint("DistanceX", 4, 2, -1, 1, 104.9205),
    Sketcher.Constraint("DistanceX", 8, 2, -1, 1, 99.0505),
    Sketcher.Constraint("DistanceX", 12, 2, -1, 1, 93.1805),
    Sketcher.Constraint("DistanceX", 16, 2, -1, 1, 87.3105),
    Sketcher.Constraint("DistanceX", 20, 2, -1, 1, 81.4405),
    Sketcher.Constraint("DistanceX", 24, 2, -1, 1, 75.5705),
    Sketcher.Constraint("DistanceX", 28, 2, -1, 1, 69.7005),
    Sketcher.Constraint("DistanceX", 32, 2, -1, 1, 63.8305),
    Sketcher.Constraint("DistanceX", 36, 2, -1, 1, 57.9605),
    Sketcher.Constraint("DistanceX", 40, 2, -1, 1, 52.0905),
    Sketcher.Constraint("DistanceX", 44, 2, -1, 1, 46.2205),
    Sketcher.Constraint("DistanceX", 48, 2, -1, 1, 40.3505),
    Sketcher.Constraint("DistanceX", 52, 2, -1, 1, 34.4805),
    Sketcher.Constraint("DistanceX", 56, 2, -1, 1, 28.6105),
])
sketch5.setExpression("Constraints[171]", "Params.sketch5_width")
pocket2 = doc.addObject("PartDesign::Pocket", "Pocket001")
body.addObject(pocket2)
pocket2.Profile = sketch5
pocket2.setExpression("Length", "Params.pocket2_length")
pocket2.Reversed = True
doc.recompute()

fillet = doc.addObject("PartDesign::Fillet", "Fillet")
body.addObject(fillet)
fillet.Base = (pocket2, edges_at(pocket2, [
    (-130, 10, 0),
    (0, 10, 0),
    (0, 10, -154),
    (-130, 10, -154),
]))
fillet.setExpression("Radius", "Params.fillet_radius")
doc.recompute()

fillet2 = doc.addObject("PartDesign::Fillet", "Fillet001")
body.addObject(fillet2)
fillet2.Base = (fillet, edges_at(fillet, [(-95, 10, -185), (-35, 10, -185)]))
fillet2.setExpression("Radius", "Params.fillet2_radius")

doc.recompute()
